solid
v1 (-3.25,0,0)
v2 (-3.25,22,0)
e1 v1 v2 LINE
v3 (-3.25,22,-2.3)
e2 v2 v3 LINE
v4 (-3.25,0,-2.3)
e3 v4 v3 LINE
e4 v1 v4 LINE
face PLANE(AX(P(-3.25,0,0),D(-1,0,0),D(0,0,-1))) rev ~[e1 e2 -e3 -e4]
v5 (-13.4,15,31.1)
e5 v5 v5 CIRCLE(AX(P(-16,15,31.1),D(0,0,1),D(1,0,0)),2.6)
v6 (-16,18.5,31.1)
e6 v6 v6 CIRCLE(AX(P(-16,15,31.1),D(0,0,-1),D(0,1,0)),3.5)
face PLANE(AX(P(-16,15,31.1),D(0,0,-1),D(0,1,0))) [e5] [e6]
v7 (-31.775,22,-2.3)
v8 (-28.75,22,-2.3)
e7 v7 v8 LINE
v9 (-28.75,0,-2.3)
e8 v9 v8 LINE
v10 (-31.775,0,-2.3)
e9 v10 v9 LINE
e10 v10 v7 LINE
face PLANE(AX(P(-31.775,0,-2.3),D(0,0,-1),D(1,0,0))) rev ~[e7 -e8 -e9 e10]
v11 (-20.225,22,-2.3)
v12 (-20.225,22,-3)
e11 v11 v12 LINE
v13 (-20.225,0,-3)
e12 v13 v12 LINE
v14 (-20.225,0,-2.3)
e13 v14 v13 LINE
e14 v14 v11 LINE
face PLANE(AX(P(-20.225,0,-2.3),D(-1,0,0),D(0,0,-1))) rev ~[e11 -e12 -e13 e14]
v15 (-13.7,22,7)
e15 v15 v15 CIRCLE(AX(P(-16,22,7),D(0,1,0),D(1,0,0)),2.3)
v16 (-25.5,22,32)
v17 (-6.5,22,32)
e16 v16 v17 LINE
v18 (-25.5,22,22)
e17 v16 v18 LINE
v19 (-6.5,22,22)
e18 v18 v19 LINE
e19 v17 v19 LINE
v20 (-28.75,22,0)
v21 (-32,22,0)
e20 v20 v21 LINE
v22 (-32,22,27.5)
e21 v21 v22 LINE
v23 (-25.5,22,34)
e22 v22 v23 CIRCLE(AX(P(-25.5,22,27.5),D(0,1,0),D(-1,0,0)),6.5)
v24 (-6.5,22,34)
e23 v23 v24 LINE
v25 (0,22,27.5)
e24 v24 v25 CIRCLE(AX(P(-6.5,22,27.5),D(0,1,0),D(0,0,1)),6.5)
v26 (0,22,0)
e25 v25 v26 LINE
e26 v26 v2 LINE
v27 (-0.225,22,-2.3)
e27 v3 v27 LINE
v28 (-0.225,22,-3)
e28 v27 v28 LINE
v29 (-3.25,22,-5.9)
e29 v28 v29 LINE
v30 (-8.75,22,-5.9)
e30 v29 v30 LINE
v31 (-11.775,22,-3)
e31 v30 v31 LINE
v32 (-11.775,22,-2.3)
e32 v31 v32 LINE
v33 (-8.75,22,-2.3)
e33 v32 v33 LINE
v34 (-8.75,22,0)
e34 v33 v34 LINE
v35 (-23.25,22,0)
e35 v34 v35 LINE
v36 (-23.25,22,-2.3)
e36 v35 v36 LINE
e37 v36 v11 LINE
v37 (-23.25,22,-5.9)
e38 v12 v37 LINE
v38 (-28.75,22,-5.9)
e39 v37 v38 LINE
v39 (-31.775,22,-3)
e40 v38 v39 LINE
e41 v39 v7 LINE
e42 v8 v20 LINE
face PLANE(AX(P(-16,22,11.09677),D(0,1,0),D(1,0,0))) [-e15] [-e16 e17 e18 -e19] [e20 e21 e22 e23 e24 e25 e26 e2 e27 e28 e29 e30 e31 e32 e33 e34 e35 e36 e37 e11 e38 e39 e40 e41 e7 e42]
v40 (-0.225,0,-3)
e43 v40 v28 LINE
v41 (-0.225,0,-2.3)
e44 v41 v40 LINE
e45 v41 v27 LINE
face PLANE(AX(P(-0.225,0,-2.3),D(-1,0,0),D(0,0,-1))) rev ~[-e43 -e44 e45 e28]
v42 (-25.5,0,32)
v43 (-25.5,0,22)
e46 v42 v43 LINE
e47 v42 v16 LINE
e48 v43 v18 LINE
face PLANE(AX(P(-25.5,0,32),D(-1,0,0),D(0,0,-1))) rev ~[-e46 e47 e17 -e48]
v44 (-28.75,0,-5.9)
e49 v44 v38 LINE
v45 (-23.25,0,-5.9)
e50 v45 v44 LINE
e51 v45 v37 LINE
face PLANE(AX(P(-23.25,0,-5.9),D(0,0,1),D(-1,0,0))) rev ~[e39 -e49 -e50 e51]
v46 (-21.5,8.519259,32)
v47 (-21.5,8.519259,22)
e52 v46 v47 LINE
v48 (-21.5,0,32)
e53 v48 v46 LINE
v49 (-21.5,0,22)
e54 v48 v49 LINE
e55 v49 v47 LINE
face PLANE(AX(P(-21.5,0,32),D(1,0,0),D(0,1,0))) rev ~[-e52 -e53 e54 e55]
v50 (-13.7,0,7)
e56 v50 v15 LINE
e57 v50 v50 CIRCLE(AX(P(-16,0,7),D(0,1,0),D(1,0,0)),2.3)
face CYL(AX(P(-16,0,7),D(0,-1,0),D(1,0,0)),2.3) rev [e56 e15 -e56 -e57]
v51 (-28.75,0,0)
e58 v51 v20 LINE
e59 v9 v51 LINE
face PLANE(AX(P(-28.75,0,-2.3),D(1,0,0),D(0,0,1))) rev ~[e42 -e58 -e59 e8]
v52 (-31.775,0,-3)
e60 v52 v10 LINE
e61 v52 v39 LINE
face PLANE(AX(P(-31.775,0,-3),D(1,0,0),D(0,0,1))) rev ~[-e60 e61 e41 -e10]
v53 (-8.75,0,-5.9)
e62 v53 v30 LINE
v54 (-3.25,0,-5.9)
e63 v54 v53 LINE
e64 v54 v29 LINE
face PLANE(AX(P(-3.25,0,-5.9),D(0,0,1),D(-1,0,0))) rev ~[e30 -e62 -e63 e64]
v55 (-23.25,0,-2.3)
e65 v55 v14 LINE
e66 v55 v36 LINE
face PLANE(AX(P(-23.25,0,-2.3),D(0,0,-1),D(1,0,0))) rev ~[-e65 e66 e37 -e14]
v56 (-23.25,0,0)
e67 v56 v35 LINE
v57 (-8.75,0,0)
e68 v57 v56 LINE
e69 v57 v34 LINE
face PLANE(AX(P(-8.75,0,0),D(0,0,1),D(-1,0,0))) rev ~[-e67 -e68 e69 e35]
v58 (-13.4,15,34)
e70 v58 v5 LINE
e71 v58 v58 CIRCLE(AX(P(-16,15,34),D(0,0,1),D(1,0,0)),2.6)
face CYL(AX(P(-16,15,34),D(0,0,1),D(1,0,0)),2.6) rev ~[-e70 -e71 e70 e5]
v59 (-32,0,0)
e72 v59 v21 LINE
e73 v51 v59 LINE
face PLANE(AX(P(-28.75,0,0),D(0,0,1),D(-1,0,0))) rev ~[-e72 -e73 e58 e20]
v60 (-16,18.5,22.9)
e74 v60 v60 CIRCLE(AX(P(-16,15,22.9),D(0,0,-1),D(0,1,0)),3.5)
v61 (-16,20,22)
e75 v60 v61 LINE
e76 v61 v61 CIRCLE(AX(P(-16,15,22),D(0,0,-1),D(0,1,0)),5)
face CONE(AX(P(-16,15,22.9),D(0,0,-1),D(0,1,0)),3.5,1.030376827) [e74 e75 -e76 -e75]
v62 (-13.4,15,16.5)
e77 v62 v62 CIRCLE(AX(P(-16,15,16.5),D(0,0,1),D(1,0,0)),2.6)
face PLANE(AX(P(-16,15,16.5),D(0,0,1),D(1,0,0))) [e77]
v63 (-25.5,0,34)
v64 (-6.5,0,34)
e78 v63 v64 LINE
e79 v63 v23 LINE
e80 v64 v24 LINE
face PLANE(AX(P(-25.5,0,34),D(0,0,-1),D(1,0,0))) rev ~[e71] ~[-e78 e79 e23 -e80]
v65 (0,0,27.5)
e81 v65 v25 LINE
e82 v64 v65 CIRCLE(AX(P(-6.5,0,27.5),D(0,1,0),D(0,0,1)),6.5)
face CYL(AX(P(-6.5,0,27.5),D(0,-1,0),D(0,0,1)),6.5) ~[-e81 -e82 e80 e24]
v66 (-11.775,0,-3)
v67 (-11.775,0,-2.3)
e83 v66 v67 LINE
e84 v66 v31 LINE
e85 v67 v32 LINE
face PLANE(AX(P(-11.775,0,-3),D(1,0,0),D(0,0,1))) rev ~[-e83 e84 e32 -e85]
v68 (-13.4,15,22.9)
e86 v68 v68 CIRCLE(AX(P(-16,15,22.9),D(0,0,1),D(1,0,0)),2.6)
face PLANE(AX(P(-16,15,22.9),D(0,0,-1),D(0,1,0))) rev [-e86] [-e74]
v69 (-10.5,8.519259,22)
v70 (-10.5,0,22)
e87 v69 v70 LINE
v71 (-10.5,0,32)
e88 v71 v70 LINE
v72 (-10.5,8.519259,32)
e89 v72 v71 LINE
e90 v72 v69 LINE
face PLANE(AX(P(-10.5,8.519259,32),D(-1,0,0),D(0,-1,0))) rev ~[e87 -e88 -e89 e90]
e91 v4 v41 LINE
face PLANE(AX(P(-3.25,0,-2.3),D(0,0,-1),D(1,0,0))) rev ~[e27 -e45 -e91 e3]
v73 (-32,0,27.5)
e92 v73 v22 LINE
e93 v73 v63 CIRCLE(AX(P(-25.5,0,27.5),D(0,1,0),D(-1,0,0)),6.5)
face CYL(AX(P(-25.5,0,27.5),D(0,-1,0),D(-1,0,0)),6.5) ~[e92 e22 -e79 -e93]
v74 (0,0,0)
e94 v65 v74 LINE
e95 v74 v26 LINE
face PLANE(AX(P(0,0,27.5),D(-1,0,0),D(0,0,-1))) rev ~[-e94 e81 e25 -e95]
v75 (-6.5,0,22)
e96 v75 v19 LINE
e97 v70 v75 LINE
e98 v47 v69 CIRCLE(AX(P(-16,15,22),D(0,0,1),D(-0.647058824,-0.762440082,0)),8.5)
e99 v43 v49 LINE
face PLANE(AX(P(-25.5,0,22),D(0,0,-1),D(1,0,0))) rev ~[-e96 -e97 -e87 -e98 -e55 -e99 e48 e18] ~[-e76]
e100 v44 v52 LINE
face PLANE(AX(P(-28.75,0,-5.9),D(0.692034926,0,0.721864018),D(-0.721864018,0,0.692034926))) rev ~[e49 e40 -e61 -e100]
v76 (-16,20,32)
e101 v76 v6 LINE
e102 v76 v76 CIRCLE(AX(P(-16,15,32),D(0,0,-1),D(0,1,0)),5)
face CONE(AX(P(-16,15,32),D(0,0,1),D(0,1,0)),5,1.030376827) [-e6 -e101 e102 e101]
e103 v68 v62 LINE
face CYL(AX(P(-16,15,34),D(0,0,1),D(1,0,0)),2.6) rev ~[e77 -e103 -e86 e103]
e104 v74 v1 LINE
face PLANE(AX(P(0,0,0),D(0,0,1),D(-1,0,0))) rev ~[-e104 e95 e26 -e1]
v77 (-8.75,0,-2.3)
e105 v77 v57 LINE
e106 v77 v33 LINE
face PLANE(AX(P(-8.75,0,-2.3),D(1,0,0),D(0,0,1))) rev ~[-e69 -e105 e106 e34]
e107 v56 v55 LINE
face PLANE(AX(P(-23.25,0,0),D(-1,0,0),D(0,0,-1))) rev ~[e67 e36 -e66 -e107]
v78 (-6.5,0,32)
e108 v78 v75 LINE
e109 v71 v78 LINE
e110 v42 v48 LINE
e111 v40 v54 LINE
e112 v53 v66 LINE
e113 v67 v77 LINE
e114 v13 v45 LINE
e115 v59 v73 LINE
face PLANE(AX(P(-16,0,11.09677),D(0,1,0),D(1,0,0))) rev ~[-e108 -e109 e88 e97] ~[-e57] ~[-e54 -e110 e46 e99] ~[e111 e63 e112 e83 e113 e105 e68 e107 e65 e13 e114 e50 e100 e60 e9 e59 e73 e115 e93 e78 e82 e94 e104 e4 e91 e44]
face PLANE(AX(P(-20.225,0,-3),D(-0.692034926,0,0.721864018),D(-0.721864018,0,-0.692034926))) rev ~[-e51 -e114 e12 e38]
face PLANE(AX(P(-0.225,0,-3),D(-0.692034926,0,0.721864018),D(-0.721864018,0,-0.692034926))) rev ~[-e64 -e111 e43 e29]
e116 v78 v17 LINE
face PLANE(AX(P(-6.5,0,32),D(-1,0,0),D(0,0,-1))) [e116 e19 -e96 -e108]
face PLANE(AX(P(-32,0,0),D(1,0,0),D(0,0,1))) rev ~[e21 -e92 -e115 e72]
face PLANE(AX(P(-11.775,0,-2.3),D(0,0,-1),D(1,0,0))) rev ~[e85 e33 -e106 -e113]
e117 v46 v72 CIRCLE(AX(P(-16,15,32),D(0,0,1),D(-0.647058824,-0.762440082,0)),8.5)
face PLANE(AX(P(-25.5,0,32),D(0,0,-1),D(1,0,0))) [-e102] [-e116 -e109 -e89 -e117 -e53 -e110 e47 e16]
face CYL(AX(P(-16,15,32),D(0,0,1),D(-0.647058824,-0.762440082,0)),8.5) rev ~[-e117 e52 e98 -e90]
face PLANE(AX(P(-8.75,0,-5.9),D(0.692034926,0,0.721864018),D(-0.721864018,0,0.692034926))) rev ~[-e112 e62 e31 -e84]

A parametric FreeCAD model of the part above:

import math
import FreeCAD as App
import Part
import Sketcher


def add_polygon(sketch, points):
    """Adds a closed chain of lines whose ends are joined by coincident constraints."""
    first, n = sketch.GeometryCount, len(points)
    for a, b in zip(points, points[1:] + points[:1]):
        sketch.addGeometry(Part.LineSegment(App.Vector(*a, 0), App.Vector(*b, 0)), False)
    for i in range(n):
        sketch.addConstraint(Sketcher.Constraint("Coincident", first + i, 2, first + (i + 1) % n, 1))

doc = App.newDocument("Part")
body = doc.addObject("PartDesign::Body", "Body")

# Sketch on XZ plane
sketch1 = body.newObject("Sketcher::SketchObject", "Sketch")
sketch1.AttachmentSupport = (doc.getObject("XZ_Plane"), [""])
sketch1.MapMode = "FlatFace"
sketch1.addGeometry(Part.LineSegment(App.Vector(-32, 0, 0), App.Vector(-32, 27.5, 0)), False)  # 0
sketch1.addGeometry(Part.ArcOfCircle(Part.Circle(App.Vector(-25.5, 27.5, 0), App.Vector(0, 0, 1), 6.5), math.radians(90), math.radians(180)), False)  # 1
sketch1.addGeometry(Part.LineSegment(App.Vector(-25.5, 34, 0), App.Vector(-6.5, 34, 0)), False)  # 2
sketch1.addGeometry(Part.ArcOfCircle(Part.Circle(App.Vector(-6.5, 27.5, 0), App.Vector(0, 0, 1), 6.5), math.radians(0), math.radians(90)), False)  # 3
sketch1.addGeometry(Part.LineSegment(App.Vector(0, 27.5, 0), App.Vector(0, 0, 0)), False)  # 4
sketch1.addGeometry(Part.LineSegment(App.Vector(0, 0, 0), App.Vector(-3.2, 0, 0)), False)  # 5
sketch1.addGeometry(Part.LineSegment(App.Vector(-3.2, 0, 0), App.Vector(-3.2, -2.3, 0)), False)  # 6
sketch1.addGeometry(Part.LineSegment(App.Vector(-3.2, -2.3, 0), App.Vector(-0.2, -2.3, 0)), False)  # 7
sketch1.addGeometry(Part.LineSegment(App.Vector(-0.2, -2.3, 0), App.Vector(-0.2, -3, 0)), False)  # 8
sketch1.addGeometry(Part.LineSegment(App.Vector(-0.2, -3, 0), App.Vector(-3.2, -5.9, 0)), False)  # 9
sketch1.addGeometry(Part.LineSegment(App.Vector(-3.2, -5.9, 0), App.Vector(-8.8, -5.9, 0)), False)  # 10
sketch1.addGeometry(Part.LineSegment(App.Vector(-8.8, -5.9, 0), App.Vector(-11.8, -3, 0)), False)  # 11
sketch1.addGeometry(Part.LineSegment(App.Vector(-11.8, -3, 0), App.Vector(-11.8, -2.3, 0)), False)  # 12
sketch1.addGeometry(Part.LineSegment(App.Vector(-11.8, -2.3, 0), App.Vector(-8.8, -2.3, 0)), False)  # 13
sketch1.addGeometry(Part.LineSegment(App.Vector(-8.8, -2.3, 0), App.Vector(-8.8, 0, 0)), False)  # 14
sketch1.addGeometry(Part.LineSegment(App.Vector(-8.8, 0, 0), App.Vector(-23.2, 0, 0)), False)  # 15
sketch1.addGeometry(Part.LineSegment(App.Vector(-23.2, 0, 0), App.Vector(-23.2, -2.3, 0)), False)  # 16
sketch1.addGeometry(Part.LineSegment(App.Vector(-23.2, -2.3, 0), App.Vector(-20.2, -2.3, 0)), False)  # 17
sketch1.addGeometry(Part.LineSegment(App.Vector(-20.2, -2.3, 0), App.Vector(-20.2, -3, 0)), False)  # 18
sketch1.addGeometry(Part.LineSegment(App.Vector(-20.2, -3, 0), App.Vector(-23.2, -5.9, 0)), False)  # 19
sketch1.addGeometry(Part.LineSegment(App.Vector(-23.2, -5.9, 0), App.Vector(-28.8, -5.9, 0)), False)  # 20
sketch1.addGeometry(Part.LineSegment(App.Vector(-28.8, -5.9, 0), App.Vector(-31.8, -3, 0)), False)  # 21
sketch1.addGeometry(Part.LineSegment(App.Vector(-31.8, -3, 0), App.Vector(-31.8, -2.3, 0)), False)  # 22
sketch1.addGeometry(Part.LineSegment(App.Vector(-31.8, -2.3, 0), App.Vector(-28.8, -2.3, 0)), False)  # 23
sketch1.addGeometry(Part.LineSegment(App.Vector(-28.8, -2.3, 0), App.Vector(-28.8, 0, 0)), False)  # 24
sketch1.addGeometry(Part.LineSegment(App.Vector(-28.8, 0, 0), App.Vector(-32, 0, 0)), False)  # 25
add_polygon(sketch1, [(-6.5, 32), (-25.5, 32), (-25.5, 22), (-6.5, 22)])  # lines 26-29
sketch1.addGeometry(Part.Circle(App.Vector(-16, 7, 0), App.Vector(0, 0, 1), 2.3), False)  # 30
sketch1.addConstraint(Sketcher.Constraint("Tangent", 0, 2, 1, 2))
sketch1.addConstraint(Sketcher.Constraint("Tangent", 1, 1, 2, 1))
sketch1.addConstraint(Sketcher.Constraint("Tangent", 2, 2, 3, 2))
sketch1.addConstraint(Sketcher.Constraint("Tangent", 3, 1, 4, 1))
sketch1.addConstraint(Sketcher.Constraint("Coincident", 4, 2, 5, 1))
sketch1.addConstraint(Sketcher.Constraint("Coincident", 5, 2, 6, 1))
sketch1.addConstraint(Sketcher.Constraint("Coincident", 6, 2, 7, 1))
sketch1.addConstraint(Sketcher.Constraint("Coincident", 7, 2, 8, 1))
sketch1.addConstraint(Sketcher.Constraint("Coincident", 8, 2, 9, 1))
sketch1.addConstraint(Sketcher.Constraint("Coincident", 9, 2, 10, 1))
sketch1.addConstraint(Sketcher.Constraint("Coincident", 10, 2, 11, 1))
sketch1.addConstraint(Sketcher.Constraint("Coincident", 11, 2, 12, 1))
sketch1.addConstraint(Sketcher.Constraint("Coincident", 12, 2, 13, 1))
sketch1.addConstraint(Sketcher.Constraint("Coincident", 13, 2, 14, 1))
sketch1.addConstraint(Sketcher.Constraint("Coincident", 14, 2, 15, 1))
sketch1.addConstraint(Sketcher.Constraint("Coincident", 15, 2, 16, 1))
sketch1.addConstraint(Sketcher.Constraint("Coincident", 16, 2, 17, 1))
sketch1.addConstraint(Sketcher.Constraint("Coincident", 17, 2, 18, 1))
sketch1.addConstraint(Sketcher.Constraint("Coincident", 18, 2, 19, 1))
sketch1.addConstraint(Sketcher.Constraint("Coincident", 19, 2, 20, 1))
sketch1.addConstraint(Sketcher.Constraint("Coincident", 20, 2, 21, 1))
sketch1.addConstraint(Sketcher.Constraint("Coincident", 21, 2, 22, 1))
sketch1.addConstraint(Sketcher.Constraint("Coincident", 22, 2, 23, 1))
sketch1.addConstraint(Sketcher.Constraint("Coincident", 23, 2, 24, 1))
sketch1.addConstraint(Sketcher.Constraint("Coincident", 24, 2, 25, 1))
sketch1.addConstraint(Sketcher.Constraint("Coincident", 25, 2, 0, 1))
sketch1.addConstraint(Sketcher.Constraint("Vertical", 0))
sketch1.addConstraint(Sketcher.Constraint("Horizontal", 2))
sketch1.addConstraint(Sketcher.Constraint("Vertical", 4))
sketch1.addConstraint(Sketcher.Constraint("Horizontal", 5))
sketch1.addConstraint(Sketcher.Constraint("Vertical", 6))
sketch1.addConstraint(Sketcher.Constraint("Horizontal", 7))
sketch1.addConstraint(Sketcher.Constraint("Vertical", 8))
sketch1.addConstraint(Sketcher.Constraint("Horizontal", 10))
sketch1.addConstraint(Sketcher.Constraint("Vertical", 12))
sketch1.addConstraint(Sketcher.Constraint("Horizontal", 13))
sketch1.addConstraint(Sketcher.Constraint("Vertical", 14))
sketch1.addConstraint(Sketcher.Constraint("Horizontal", 15))
sketch1.addConstraint(Sketcher.Constraint("Vertical", 16))
sketch1.addConstraint(Sketcher.Constraint("Horizontal", 17))
sketch1.addConstraint(Sketcher.Constraint("Vertical", 18))
sketch1.addConstraint(Sketcher.Constraint("Horizontal", 20))
sketch1.addConstraint(Sketcher.Constraint("Vertical", 22))
sketch1.addConstraint(Sketcher.Constraint("Horizontal", 23))
sketch1.addConstraint(Sketcher.Constraint("Vertical", 24))
sketch1.addConstraint(Sketcher.Constraint("Horizontal", 25))
sketch1.addConstraint(Sketcher.Constraint("Horizontal", 26))
sketch1.addConstraint(Sketcher.Constraint("Vertical", 27))
sketch1.addConstraint(Sketcher.Constraint("Horizontal", 28))
sketch1.addConstraint(Sketcher.Constraint("Vertical", 29))
sketch1.addConstraint(Sketcher.Constraint("Coincident", 4, 2, -1, 1))
sketch1.addConstraint(Sketcher.Constraint("Equal", 1, 3))
sketch1.addConstraint(Sketcher.Constraint("PointOnObject", 14, 2, -1))
sketch1.addConstraint(Sketcher.Constraint("PointOnObject", 24, 2, -1))
sketch1.addConstraint(Sketcher.Constraint("Parallel", 9, 19))
sketch1.addConstraint(Sketcher.Constraint("Parallel", 11, 21))
sketch1.addConstraint(Sketcher.Constraint("Horizontal", 8, 2, 11, 2))
sketch1.addConstraint(Sketcher.Constraint("Horizontal", 7, 2, 12, 2))
sketch1.addConstraint(Sketcher.Constraint("Horizontal", 13, 2, 16, 2))
sketch1.addConstraint(Sketcher.Constraint("Horizontal", 11, 2, 18, 2))
sketch1.addConstraint(Sketcher.Constraint("Horizontal", 10, 2, 19, 2))
sketch1.addConstraint(Sketcher.Constraint("Horizontal", 18, 2, 21, 2))
sketch1.addConstraint(Sketcher.Constraint("Horizontal", 17, 2, 22, 2))
sketch1.addConstraint(Sketcher.Constraint("Vertical", 6, 2, 9, 2))
sketch1.addConstraint(Sketcher.Constraint("Vertical", 10, 2, 13, 2))
sketch1.addConstraint(Sketcher.Constraint("Vertical", 16, 2, 19, 2))
sketch1.addConstraint(Sketcher.Constraint("Vertical", 20, 2, 23, 2))
sketch1.addConstraint(Sketcher.Constraint("Vertical", 1, 1, 26, 2))
sketch1.addConstraint(Sketcher.Constraint("Vertical", 2, 2, 28, 2))
sketch1.addConstraint(Sketcher.Constraint("Equal", 7, 13))
sketch1.addConstraint(Sketcher.Constraint("Equal", 10, 20))
sketch1.addConstraint(Sketcher.Constraint("Equal", 5, 25))
sketch1.addConstraint(Sketcher.Constraint("Diameter", 30, 4.6))
sketch1.addConstraint(Sketcher.Constraint("Radius", 1, 6.5))
sketch1.addConstraint(Sketcher.Constraint("DistanceX", 2, 1, 2, 2, 19.0))
sketch1.addConstraint(Sketcher.Constraint("DistanceY", 27, 2, 27, 1, 10.0))
sketch1.addConstraint(Sketcher.Constraint("DistanceX", 10, 2, 10, 1, 5.5))
sketch1.addConstraint(Sketcher.Constraint("DistanceX", 15, 2, 15, 1, 14.5))
sketch1.addConstraint(Sketcher.Constraint("DistanceY", 0, 1, 0, 2, 27.5))
sketch1.addConstraint(Sketcher.Constraint("DistanceY", 6, 2, 6, 1, 2.3))
sketch1.addConstraint(Sketcher.Constraint("DistanceY", 8, 2, 8, 1, 0.7))
sketch1.addConstraint(Sketcher.Constraint("DistanceX", 30, 3, -1, 1, 16.0))
sketch1.addConstraint(Sketcher.Constraint("DistanceY", -1, 1, 30, 3, 7.0))
sketch1.addConstraint(Sketcher.Constraint("DistanceY", -1, 1, 26, 2, 32.0))
sketch1.addConstraint(Sketcher.Constraint("DistanceY", 9, 2, -1, 1, 5.9))
sketch1.addConstraint(Sketcher.Constraint("DistanceX", 7, 1, 7, 2, 3.025))
pad1 = body.newObject("PartDesign::Pad", "Pad")
pad1.Profile = sketch1
pad1.Length = 22
pad1.Reversed = True

# Sketch on XY plane
sketch2 = body.newObject("Sketcher::SketchObject", "Sketch001")
sketch2.AttachmentSupport = (doc.getObject("XY_Plane"), [""])
sketch2.MapMode = "FlatFace"
sketch2.AttachmentOffset = App.Placement(App.Vector(0, 0, 32), App.Rotation())
sketch2.addGeometry(Part.LineSegment(App.Vector(-22, 0, 0), App.Vector(-22, 9, 0)), False)
sketch2.addGeometry(Part.ArcOfCircle(Part.Circle(App.Vector(-16, 15, 0), App.Vector(0, 0, 1), 8), math.radians(-130), math.radians(-50)), False)
sketch2.addGeometry(Part.LineSegment(App.Vector(-10, 9, 0), App.Vector(-10, 0, 0)), False)
sketch2.addGeometry(Part.LineSegment(App.Vector(-10, 0, 0), App.Vector(-22, 0, 0)), False)
sketch2.addConstraint(Sketcher.Constraint("Coincident", 0, 2, 1, 1))
sketch2.addConstraint(Sketcher.Constraint("Coincident", 1, 2, 2, 1))
sketch2.addConstraint(Sketcher.Constraint("Coincident", 2, 2, 3, 1))
sketch2.addConstraint(Sketcher.Constraint("Coincident", 3, 2, 0, 1))
sketch2.addConstraint(Sketcher.Constraint("Vertical", 0))
sketch2.addConstraint(Sketcher.Constraint("Vertical", 2))
sketch2.addConstraint(Sketcher.Constraint("Horizontal", 3))
sketch2.addConstraint(Sketcher.Constraint("PointOnObject", 2, 2, -1))
sketch2.addConstraint(Sketcher.Constraint("Horizontal", 0, 2, 1, 2))
sketch2.addConstraint(Sketcher.Constraint("Radius", 1, 8.5))
sketch2.addConstraint(Sketcher.Constraint("DistanceX", 3, 2, 3, 1, 11.0))
sketch2.addConstraint(Sketcher.Constraint("DistanceX", 1, 3, -1, 1, 16.0))
sketch2.addConstraint(Sketcher.Constraint("DistanceY", -1, 1, 1, 3, 15.0))
pad2 = body.newObject("PartDesign::Pad", "Pad001")
pad2.Profile = sketch2
pad2.Type = "UpToFirst"
pad2.Reversed = True

# Sketch on YZ plane
sketch3 = body.newObject("Sketcher::SketchObject", "Sketch002")
sketch3.AttachmentSupport = (doc.getObject("YZ_Plane"), [""])
sketch3.MapMode = "FlatFace"
sketch3.AttachmentOffset = App.Placement(App.Vector(0, 0, -16), App.Rotation())
add_polygon(sketch3, [(18.5, 31.1), (20, 32), (15, 32), (15, 31.1)])  # lines 0-3
add_polygon(sketch3, [(15, 22.9), (15, 22), (20, 22), (18.5, 22.9)])  # lines 4-7
sketch3.addGeometry(Part.LineSegment(App.Vector(15, 32, 0), App.Vector(15, 22, 0)), True)  # axis
sketch3.addConstraint(Sketcher.Constraint("Horizontal", 1))
sketch3.addConstraint(Sketcher.Constraint("Vertical", 2))
sketch3.addConstraint(Sketcher.Constraint("Horizontal", 3))
sketch3.addConstraint(Sketcher.Constraint("Vertical", 4))
sketch3.addConstraint(Sketcher.Constraint("Horizontal", 5))
sketch3.addConstraint(Sketcher.Constraint("Horizontal", 7))
sketch3.addConstraint(Sketcher.Constraint("Vertical", 8))
sketch3.addConstraint(Sketcher.Constraint("Coincident", 8, 1, 1, 2))
sketch3.addConstraint(Sketcher.Constraint("Coincident", 8, 2, 4, 2))
sketch3.addConstraint(Sketcher.Constraint("Vertical", 0, 2, 5, 2))
sketch3.addConstraint(Sketcher.Constraint("Vertical", 3, 2, 6, 2))
sketch3.addConstraint(Sketcher.Constraint("Equal", 2, 4))
sketch3.addConstraint(Sketcher.Constraint("DistanceX", 1, 2, 1, 1, 5.0))
sketch3.addConstraint(Sketcher.Constraint("DistanceY", 8, 2, 8, 1, 10.0))
sketch3.addConstraint(Sketcher.Constraint("DistanceX", 3, 1, 3, 2, 3.5))
sketch3.addConstraint(Sketcher.Constraint("DistanceY", 2, 2, 2, 1, 0.9))
sketch3.addConstraint(Sketcher.Constraint("DistanceX", -1, 1, 0, 2, 20.0))
sketch3.addConstraint(Sketcher.Constraint("DistanceY", -1, 1, 0, 2, 32.0))
revolution = body.newObject("PartDesign::Revolution", "Revolution")
revolution.Profile = sketch3
revolution.ReferenceAxis = (sketch3, ["Axis0"])
revolution.Angle = 360

# Sketch on XY plane
sketch4 = body.newObject("Sketcher::SketchObject", "Sketch003")
sketch4.AttachmentSupport = (doc.getObject("XY_Plane"), [""])
sketch4.MapMode = "FlatFace"
sketch4.AttachmentOffset = App.Placement(App.Vector(0, 0, 34), App.Rotation())
sketch4.addGeometry(Part.Circle(App.Vector(-16, 15, 0), App.Vector(0, 0, 1), 2.6), False)
sketch4.addConstraint(Sketcher.Constraint("Diameter", 0, 5.2))
sketch4.addConstraint(Sketcher.Constraint("DistanceX", 0, 3, -1, 1, 16.0))
sketch4.addConstraint(Sketcher.Constraint("DistanceY", -1, 1, 0, 3, 15.0))
pocket1 = body.newObject("PartDesign::Pocket", "Pocket")
pocket1.Profile = sketch4
pocket1.Length = 17.5

doc.recompute()
